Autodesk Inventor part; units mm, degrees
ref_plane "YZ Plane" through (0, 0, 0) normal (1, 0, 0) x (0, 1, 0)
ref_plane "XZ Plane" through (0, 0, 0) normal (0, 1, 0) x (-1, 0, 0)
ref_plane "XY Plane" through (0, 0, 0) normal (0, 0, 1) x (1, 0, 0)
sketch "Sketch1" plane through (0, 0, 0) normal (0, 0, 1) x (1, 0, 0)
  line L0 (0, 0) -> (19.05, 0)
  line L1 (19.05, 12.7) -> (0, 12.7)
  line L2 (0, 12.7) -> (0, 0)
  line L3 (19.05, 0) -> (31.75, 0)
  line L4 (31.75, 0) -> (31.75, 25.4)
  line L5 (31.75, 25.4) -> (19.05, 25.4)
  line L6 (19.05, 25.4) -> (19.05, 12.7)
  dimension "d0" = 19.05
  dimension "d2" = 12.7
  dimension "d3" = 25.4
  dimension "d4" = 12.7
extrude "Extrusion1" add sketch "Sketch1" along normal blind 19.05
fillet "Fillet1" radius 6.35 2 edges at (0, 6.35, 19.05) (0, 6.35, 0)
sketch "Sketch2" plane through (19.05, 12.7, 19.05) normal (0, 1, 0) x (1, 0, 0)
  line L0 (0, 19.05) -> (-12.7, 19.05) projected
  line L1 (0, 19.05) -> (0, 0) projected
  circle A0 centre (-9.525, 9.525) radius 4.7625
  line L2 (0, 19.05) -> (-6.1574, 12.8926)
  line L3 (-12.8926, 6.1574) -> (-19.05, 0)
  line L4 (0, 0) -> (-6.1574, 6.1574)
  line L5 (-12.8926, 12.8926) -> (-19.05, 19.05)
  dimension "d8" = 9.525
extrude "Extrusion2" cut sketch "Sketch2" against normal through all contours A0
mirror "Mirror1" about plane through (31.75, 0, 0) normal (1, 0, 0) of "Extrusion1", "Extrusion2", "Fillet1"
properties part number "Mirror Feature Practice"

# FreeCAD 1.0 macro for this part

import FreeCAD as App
import Part
import Sketcher
Q = App.Units.Quantity


def edges_at(feature, points):
    """Names of the edges that pass closest to the given points."""
    edges = feature.Shape.Edges
    near = lambda p: min(range(len(edges)), key=lambda i: edges[i].distToShape(Part.Vertex(*p))[0])
    return sorted({f"Edge{near(p) + 1}" for p in points})

doc = App.newDocument("Part")
body = doc.addObject("PartDesign::Body", "Body")

sketch1 = body.newObject("Sketcher::SketchObject", "Sketch")
sketch1.AttachmentSupport = (doc.getObject("XY_Plane"), [""])
sketch1.MapMode = "FlatFace"
sketch1.addGeometry([
    Part.LineSegment(App.Vector(0, 12.7, 0), App.Vector(0, 0, 0)),
    Part.LineSegment(App.Vector(0, 0, 0), App.Vector(31.75, 0, 0)),
    Part.LineSegment(App.Vector(31.75, 0, 0), App.Vector(31.75, 25.4, 0)),
    Part.LineSegment(App.Vector(31.75, 25.4, 0), App.Vector(19.05, 25.4, 0)),
    Part.LineSegment(App.Vector(19.05, 25.4, 0), App.Vector(19.05, 12.7, 0)),
    Part.LineSegment(App.Vector(19.05, 12.7, 0), App.Vector(0, 12.7, 0)),
], False)
sketch1.addConstraint([
    Sketcher.Constraint("Coincident", 0, 2, 1, 1),
    Sketcher.Constraint("Coincident", 1, 2, 2, 1),
    Sketcher.Constraint("Coincident", 2, 2, 3, 1),
    Sketcher.Constraint("Coincident", 3, 2, 4, 1),
    Sketcher.Constraint("Coincident", 4, 2, 5, 1),
    Sketcher.Constraint("Coincident", 5, 2, 0, 1),
    Sketcher.Constraint("Vertical", 0),
    Sketcher.Constraint("Horizontal", 1),
    Sketcher.Constraint("Vertical", 2),
    Sketcher.Constraint("Horizontal", 3),
    Sketcher.Constraint("Vertical", 4),
    Sketcher.Constraint("Horizontal", 5),
    Sketcher.Constraint("Coincident", 0, 2, -1, 1),
    Sketcher.Constraint("Equal", 3, 0),
    Sketcher.Constraint("Equal", 0, 4),
    Sketcher.Constraint("DistanceY", 2, 1, 2, 2, Q("1 in")),
    Sketcher.Constraint("DistanceX", 5, 2, 5, 1, Q("0.75 in")),
])
pad1 = body.newObject("PartDesign::Pad", "Pad")
pad1.Profile = sketch1
pad1.Length = Q("0.75 in")
doc.recompute()

fillet = body.newObject("PartDesign::Fillet", "Fillet")
fillet.Base = (pad1, edges_at(pad1, [(0, 6.35, 19.05), (0, 6.35, 0)]))
fillet.Radius = Q("0.25 in")

sketch2 = body.newObject("Sketcher::SketchObject", "Sketch001")
sketch2.AttachmentSupport = (doc.getObject("XZ_Plane"), [""])
sketch2.MapMode = "FlatFace"
sketch2.AttachmentOffset = App.Placement(App.Vector(0, 0, -0.5 * 25.4), App.Rotation())
sketch2.addGeometry(Part.Circle(App.Vector(9.525, 9.525, 0), App.Vector(0, 0, 1), 4.7625), False)
sketch2.addConstraint([
    Sketcher.Constraint("Diameter", 0, Q("0.375 in")),
    Sketcher.Constraint("DistanceX", -1, 1, 0, 3, Q("0.375 in")),
    Sketcher.Constraint("DistanceY", -1, 1, 0, 3, Q("0.375 in")),
])
pocket1 = body.newObject("PartDesign::Pocket", "Pocket")
pocket1.Profile = sketch2
pocket1.Type = "ThroughAll"
pocket1.Reversed = True
doc.recompute()

datumplane = body.newObject("PartDesign::Plane", "DatumPlane")
datumplane.AttachmentSupport = (doc.getObject("YZ_Plane"), [""])
datumplane.MapMode = "FlatFace"
datumplane.AttachmentOffset = App.Placement(App.Vector(0, 0, 1.25 * 25.4), App.Rotation())
mirrored = body.newObject("PartDesign::Mirrored", "Mirrored")
mirrored.Originals = [pad1, pocket1, fillet]
mirrored.MirrorPlane = (datumplane, [""])
body.Tip = mirrored

doc.recompute()
